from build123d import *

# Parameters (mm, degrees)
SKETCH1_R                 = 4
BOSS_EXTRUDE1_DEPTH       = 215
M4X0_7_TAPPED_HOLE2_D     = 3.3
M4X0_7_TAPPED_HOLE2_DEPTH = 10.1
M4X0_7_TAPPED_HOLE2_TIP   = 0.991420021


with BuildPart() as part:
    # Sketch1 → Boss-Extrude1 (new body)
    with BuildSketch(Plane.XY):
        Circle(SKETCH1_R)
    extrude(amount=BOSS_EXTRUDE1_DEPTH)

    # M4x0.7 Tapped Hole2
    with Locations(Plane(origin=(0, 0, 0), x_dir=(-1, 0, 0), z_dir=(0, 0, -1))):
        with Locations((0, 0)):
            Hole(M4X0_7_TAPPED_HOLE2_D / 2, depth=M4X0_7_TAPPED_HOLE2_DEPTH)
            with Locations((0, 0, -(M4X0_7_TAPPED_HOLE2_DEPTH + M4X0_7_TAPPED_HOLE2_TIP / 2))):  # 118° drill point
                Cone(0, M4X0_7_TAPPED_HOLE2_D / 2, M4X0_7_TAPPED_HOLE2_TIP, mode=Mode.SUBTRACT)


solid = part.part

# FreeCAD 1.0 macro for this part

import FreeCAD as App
import Part
import Sketcher

V = App.Vector
Q = App.Units.Quantity

doc = App.newDocument("Part")
body = doc.addObject("PartDesign::Body", "Body")

sketch1 = body.newObject("Sketcher::SketchObject", "Sketch")
sketch1.AttachmentSupport = (doc.getObject("XY_Plane"), [""])
sketch1.MapMode = "FlatFace"
sketch1.addGeometry(Part.Circle(V(0, 0, 0), V(0, 0, 1), 4), False)
sketch1.addConstraint([
    Sketcher.Constraint("Coincident", 0, 3, -1, 1),
    Sketcher.Constraint("Diameter", 0, Q("8 mm")),
])
pad1 = body.newObject("PartDesign::Pad", "Pad")
pad1.Profile = sketch1
pad1.Length = 215

sketch2 = body.newObject("Sketcher::SketchObject", "Sketch001")
sketch2.AttachmentSupport = (doc.getObject("XY_Plane"), [""])
sketch2.MapMode = "FlatFace"
sketch2.addGeometry(Part.Circle(V(0, 0, 0), V(0, 0, 1), 1.65), False)
sketch2.addConstraint([
    Sketcher.Constraint("Coincident", 0, 3, -1, 1),
    Sketcher.Constraint("Diameter", 0, Q("3.3 mm")),
])
doc.recompute()
hole = body.newObject("PartDesign::Hole", "Hole")
hole.Profile = sketch2
hole.ThreadType = "None"
hole.Diameter = 3.3
hole.DepthType = "Dimension"
hole.Depth = 10.1
hole.DrillPoint = "Angled"
hole.DrillPointAngle = 118
hole.Reversed = True

doc.recompute()
